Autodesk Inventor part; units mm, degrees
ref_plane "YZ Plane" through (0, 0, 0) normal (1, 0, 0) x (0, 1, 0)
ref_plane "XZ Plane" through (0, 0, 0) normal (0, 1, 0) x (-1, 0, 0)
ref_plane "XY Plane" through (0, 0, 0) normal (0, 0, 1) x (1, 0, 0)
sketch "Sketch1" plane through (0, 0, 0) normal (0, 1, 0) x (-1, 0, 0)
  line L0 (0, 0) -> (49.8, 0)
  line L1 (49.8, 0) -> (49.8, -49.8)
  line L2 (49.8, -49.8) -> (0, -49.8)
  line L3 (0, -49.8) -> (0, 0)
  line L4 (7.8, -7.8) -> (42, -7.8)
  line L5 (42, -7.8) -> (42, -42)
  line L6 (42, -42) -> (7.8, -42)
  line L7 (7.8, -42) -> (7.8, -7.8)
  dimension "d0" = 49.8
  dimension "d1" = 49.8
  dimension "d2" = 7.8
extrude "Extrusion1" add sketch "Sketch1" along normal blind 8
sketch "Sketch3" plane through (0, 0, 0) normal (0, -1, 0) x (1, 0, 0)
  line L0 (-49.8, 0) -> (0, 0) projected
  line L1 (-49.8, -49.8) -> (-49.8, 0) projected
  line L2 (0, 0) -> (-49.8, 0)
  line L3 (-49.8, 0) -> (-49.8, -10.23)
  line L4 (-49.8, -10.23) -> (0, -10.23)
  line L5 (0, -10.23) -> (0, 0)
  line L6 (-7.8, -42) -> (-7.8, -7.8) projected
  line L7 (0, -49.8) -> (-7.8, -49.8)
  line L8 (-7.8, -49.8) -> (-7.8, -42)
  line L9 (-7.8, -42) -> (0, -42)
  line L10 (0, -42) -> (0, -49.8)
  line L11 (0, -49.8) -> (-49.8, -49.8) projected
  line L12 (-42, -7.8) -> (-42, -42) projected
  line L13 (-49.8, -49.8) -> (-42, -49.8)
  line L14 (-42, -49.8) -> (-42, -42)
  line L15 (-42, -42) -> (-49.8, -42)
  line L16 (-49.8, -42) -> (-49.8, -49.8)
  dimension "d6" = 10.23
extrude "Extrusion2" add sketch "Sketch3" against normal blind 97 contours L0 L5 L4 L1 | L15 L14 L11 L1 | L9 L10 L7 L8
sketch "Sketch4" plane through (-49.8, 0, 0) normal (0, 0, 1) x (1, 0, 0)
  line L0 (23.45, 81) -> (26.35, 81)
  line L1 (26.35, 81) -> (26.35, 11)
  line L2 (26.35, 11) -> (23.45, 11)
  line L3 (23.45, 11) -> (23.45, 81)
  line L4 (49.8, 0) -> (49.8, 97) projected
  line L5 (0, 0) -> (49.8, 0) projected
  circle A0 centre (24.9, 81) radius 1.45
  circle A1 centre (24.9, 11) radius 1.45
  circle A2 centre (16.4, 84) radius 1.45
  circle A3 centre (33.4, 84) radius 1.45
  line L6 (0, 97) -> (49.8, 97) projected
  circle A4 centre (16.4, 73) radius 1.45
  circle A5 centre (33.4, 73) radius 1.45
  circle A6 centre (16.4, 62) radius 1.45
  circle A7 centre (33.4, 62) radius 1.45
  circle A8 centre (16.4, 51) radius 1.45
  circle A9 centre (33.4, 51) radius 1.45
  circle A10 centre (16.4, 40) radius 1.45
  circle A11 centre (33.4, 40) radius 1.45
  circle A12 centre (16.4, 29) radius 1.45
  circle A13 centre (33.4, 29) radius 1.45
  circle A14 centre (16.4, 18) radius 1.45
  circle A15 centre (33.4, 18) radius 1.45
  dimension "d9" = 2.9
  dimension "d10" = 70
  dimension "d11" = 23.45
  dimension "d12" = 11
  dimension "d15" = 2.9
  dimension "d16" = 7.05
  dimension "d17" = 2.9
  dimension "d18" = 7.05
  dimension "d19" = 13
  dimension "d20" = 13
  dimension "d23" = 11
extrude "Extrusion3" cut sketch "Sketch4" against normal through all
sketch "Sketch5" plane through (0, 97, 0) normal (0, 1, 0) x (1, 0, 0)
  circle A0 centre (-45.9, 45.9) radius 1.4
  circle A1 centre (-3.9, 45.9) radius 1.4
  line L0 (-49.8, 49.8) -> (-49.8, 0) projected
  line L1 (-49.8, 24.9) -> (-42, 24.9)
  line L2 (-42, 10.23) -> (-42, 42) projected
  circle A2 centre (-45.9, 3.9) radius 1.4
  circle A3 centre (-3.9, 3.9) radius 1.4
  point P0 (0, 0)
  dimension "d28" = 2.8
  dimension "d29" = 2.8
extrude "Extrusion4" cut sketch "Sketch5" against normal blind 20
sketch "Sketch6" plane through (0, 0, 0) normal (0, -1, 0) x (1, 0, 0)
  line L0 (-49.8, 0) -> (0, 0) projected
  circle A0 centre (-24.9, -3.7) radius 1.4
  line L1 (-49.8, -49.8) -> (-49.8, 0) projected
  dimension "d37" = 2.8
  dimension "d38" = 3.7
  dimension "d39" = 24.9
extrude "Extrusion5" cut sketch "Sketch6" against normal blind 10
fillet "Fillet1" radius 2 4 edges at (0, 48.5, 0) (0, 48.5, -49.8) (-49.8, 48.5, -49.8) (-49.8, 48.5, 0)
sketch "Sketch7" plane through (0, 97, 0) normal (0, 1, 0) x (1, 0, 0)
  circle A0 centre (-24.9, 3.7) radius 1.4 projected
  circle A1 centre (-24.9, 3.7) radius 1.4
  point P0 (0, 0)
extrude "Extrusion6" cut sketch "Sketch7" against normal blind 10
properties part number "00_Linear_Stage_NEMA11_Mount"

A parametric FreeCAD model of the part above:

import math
import FreeCAD as App
import Part
import Sketcher
from FreeCAD import Vector
Q = App.Units.Quantity


def edges_at(feature, points):
    """Names of the edges that pass closest to the given points."""
    edges = feature.Shape.Edges
    near = lambda p: min(range(len(edges)), key=lambda i: edges[i].distToShape(Part.Vertex(*p))[0])
    return sorted({f"Edge{near(p) + 1}" for p in points})


def add_polygon(sketch, points):
    """Adds a closed chain of lines whose ends are joined by coincident constraints."""
    first, n = sketch.GeometryCount, len(points)
    for a, b in zip(points, points[1:] + points[:1]):
        sketch.addGeometry(Part.LineSegment(App.Vector(*a, 0), App.Vector(*b, 0)), False)
    for i in range(n):
        sketch.addConstraint(Sketcher.Constraint("Coincident", first + i, 2, first + (i + 1) % n, 1))

doc = App.newDocument("Part")
params = doc.addObject("Spreadsheet::Sheet", "Params")
for row, (alias, value) in enumerate([
    ("sketch1_width", "49.8 mm"),
    ("pad1_length", "8 mm"),
    ("sketch2_height", "10.23 mm"),
    ("sketch2_width", "49.8 mm"),
    ("sketch2_width2", "7.8 mm"),
    ("pad2_length", "97 mm"),
    ("sketch3_diameter", "2.9 mm"),
    ("sketch3_height", "70 mm"),
    ("sketch4_diameter", "2.8 mm"),
    ("pocket2_length", "20 mm"),
    ("sketch5_diameter", "2.8 mm"),
    ("pocket3_length", "10 mm"),
    ("fillet_radius", "2 mm"),
    ("sketch6_diameter", "2.8 mm"),
    ("pocket4_length", "10 mm"),
], start=1):
    params.set(f"A{row}", alias)
    params.set(f"B{row}", "=" + value)
    params.setAlias(f"B{row}", alias)

body = doc.addObject("PartDesign::Body", "Body")

# Sketch on XZ plane
sketch1 = body.newObject("Sketcher::SketchObject", "Sketch")
sketch1.AttachmentSupport = (doc.getObject("XZ_Plane"), [""])
sketch1.MapMode = "FlatFace"
add_polygon(sketch1, [(-50, 0), (0, 0), (0, -50), (-50, -50)])  # lines 0-3
add_polygon(sketch1, [(-8, -42), (-8, -8), (-42, -8), (-42, -42)])  # lines 4-7
sketch1.addConstraint([
    Sketcher.Constraint("Horizontal", 0),
    Sketcher.Constraint("Vertical", 1),
    Sketcher.Constraint("Horizontal", 2),
    Sketcher.Constraint("Vertical", 3),
    Sketcher.Constraint("Vertical", 4),
    Sketcher.Constraint("Horizontal", 5),
    Sketcher.Constraint("Vertical", 6),
    Sketcher.Constraint("Horizontal", 7),
    Sketcher.Constraint("Coincident", 0, 2, -1, 1),
    Sketcher.Constraint("Equal", 2, 1),
    Sketcher.Constraint("Equal", 7, 4),
    Sketcher.Constraint("DistanceX", 0, 1, 0, 2, Q("49.8 mm")),
    Sketcher.Constraint("DistanceX", 4, 2, -1, 1, Q("7.8 mm")),
    Sketcher.Constraint("DistanceY", 4, 2, -1, 1, Q("7.8 mm")),
    Sketcher.Constraint("DistanceX", 3, 2, 5, 2, Q("7.8 mm")),
])
sketch1.setExpression("Constraints[19]", "Params.sketch1_width")
pad1 = body.newObject("PartDesign::Pad", "Pad")
pad1.Profile = sketch1
pad1.setExpression("Length", "Params.pad1_length")
pad1.Reversed = True

# Sketch on XZ plane
sketch2 = body.newObject("Sketcher::SketchObject", "Sketch001")
sketch2.AttachmentSupport = (doc.getObject("XZ_Plane"), [""])
sketch2.MapMode = "FlatFace"
add_polygon(sketch2, [(0, 0), (-50, 0), (-50, -10), (0, -10)])  # lines 0-3
add_polygon(sketch2, [(-42, -42), (-50, -42), (-50, -50), (-42, -50)])  # lines 4-7
add_polygon(sketch2, [(0, -42), (-8, -42), (-8, -50), (0, -50)])  # lines 8-11
sketch2.addConstraint([
    Sketcher.Constraint("Horizontal", 0),
    Sketcher.Constraint("Vertical", 1),
    Sketcher.Constraint("Horizontal", 2),
    Sketcher.Constraint("Vertical", 3),
    Sketcher.Constraint("Horizontal", 4),
    Sketcher.Constraint("Vertical", 5),
    Sketcher.Constraint("Horizontal", 6),
    Sketcher.Constraint("Vertical", 7),
    Sketcher.Constraint("Horizontal", 8),
    Sketcher.Constraint("Vertical", 9),
    Sketcher.Constraint("Horizontal", 10),
    Sketcher.Constraint("Vertical", 11),
    Sketcher.Constraint("Coincident", 3, 2, -1, 1),
    Sketcher.Constraint("PointOnObject", 10, 2, -2),
    Sketcher.Constraint("Horizontal", 7, 2, 8, 2),
    Sketcher.Constraint("Horizontal", 6, 2, 9, 2),
    Sketcher.Constraint("Vertical", 1, 2, 4, 2),
    Sketcher.Constraint("Equal", 6, 8),
    Sketcher.Constraint("Equal", 10, 5),
    Sketcher.Constraint("DistanceY", 1, 2, 1, 1, Q("10.23 mm")),
    Sketcher.Constraint("DistanceX", 0, 2, 0, 1, Q("49.8 mm")),
    Sketcher.Constraint("DistanceX", 4, 2, 4, 1, Q("7.8 mm")),
    Sketcher.Constraint("DistanceY", 4, 2, -1, 1, Q("42 mm")),
])
sketch2.setExpression("Constraints[31]", "Params.sketch2_height")
sketch2.setExpression("Constraints[32]", "Params.sketch2_width")
sketch2.setExpression("Constraints[33]", "Params.sketch2_width2")
pad2 = body.newObject("PartDesign::Pad", "Pad001")
pad2.Profile = sketch2
pad2.setExpression("Length", "Params.pad2_length")
pad2.Reversed = True

# Sketch on XY plane
sketch3 = body.newObject("Sketcher::SketchObject", "Sketch002")
sketch3.AttachmentSupport = (doc.getObject("XY_Plane"), [""])
sketch3.MapMode = "FlatFace"
sketch3.addGeometry([
    Part.ArcOfCircle(Part.Circle(Vector(-24.9, 81, 0), Vector(0, 0, 1), 1.4), math.radians(0), math.radians(180)),  # 0
    Part.LineSegment(Vector(-26.4, 81, 0), Vector(-26.4, 11, 0)),  # 1
    Part.ArcOfCircle(Part.Circle(Vector(-24.9, 11, 0), Vector(0, 0, 1), 1.4), math.radians(180), math.radians(360)),  # 2
    Part.LineSegment(Vector(-23.4, 11, 0), Vector(-23.4, 81, 0)),  # 3
    Part.Circle(Vector(-33.4, 84, 0), Vector(0, 0, 1), 1.4),  # 4
    Part.Circle(Vector(-16.4, 84, 0), Vector(0, 0, 1), 1.4),  # 5
    Part.Circle(Vector(-33.4, 73, 0), Vector(0, 0, 1), 1.4),  # 6
    Part.Circle(Vector(-16.4, 73, 0), Vector(0, 0, 1), 1.4),  # 7
    Part.Circle(Vector(-33.4, 62, 0), Vector(0, 0, 1), 1.4),  # 8
    Part.Circle(Vector(-16.4, 62, 0), Vector(0, 0, 1), 1.4),  # 9
    Part.Circle(Vector(-33.4, 51, 0), Vector(0, 0, 1), 1.4),  # 10
    Part.Circle(Vector(-16.4, 51, 0), Vector(0, 0, 1), 1.4),  # 11
    Part.Circle(Vector(-33.4, 40, 0), Vector(0, 0, 1), 1.4),  # 12
    Part.Circle(Vector(-16.4, 40, 0), Vector(0, 0, 1), 1.4),  # 13
    Part.Circle(Vector(-33.4, 29, 0), Vector(0, 0, 1), 1.4),  # 14
    Part.Circle(Vector(-16.4, 29, 0), Vector(0, 0, 1), 1.4),  # 15
    Part.Circle(Vector(-33.4, 18, 0), Vector(0, 0, 1), 1.4),  # 16
    Part.Circle(Vector(-16.4, 18, 0), Vector(0, 0, 1), 1.4),  # 17
], False)
sketch3.addConstraint([
    Sketcher.Constraint("Tangent", 0, 2, 1, 1),
    Sketcher.Constraint("Tangent", 1, 2, 2, 1),
    Sketcher.Constraint("Tangent", 2, 2, 3, 1),
    Sketcher.Constraint("Tangent", 3, 2, 0, 1),
    Sketcher.Constraint("Vertical", 1),
    Sketcher.Constraint("Vertical", 3),
    Sketcher.Constraint("Equal", 2, 4),
    Sketcher.Constraint("Equal", 4, 5),
    Sketcher.Constraint("Equal", 5, 6),
    Sketcher.Constraint("Equal", 6, 7),
    Sketcher.Constraint("Equal", 7, 8),
    Sketcher.Constraint("Equal", 8, 9),
    Sketcher.Constraint("Equal", 9, 10),
    Sketcher.Constraint("Equal", 10, 11),
    Sketcher.Constraint("Equal", 11, 12),
    Sketcher.Constraint("Equal", 12, 13),
    Sketcher.Constraint("Equal", 13, 14),
    Sketcher.Constraint("Equal", 14, 15),
    Sketcher.Constraint("Equal", 15, 16),
    Sketcher.Constraint("Equal", 16, 17),
    Sketcher.Constraint("Horizontal", 4, 3, 5, 3),
    Sketcher.Constraint("Horizontal", 6, 3, 7, 3),
    Sketcher.Constraint("Horizontal", 8, 3, 9, 3),
    Sketcher.Constraint("Horizontal", 10, 3, 11, 3),
    Sketcher.Constraint("Horizontal", 12, 3, 13, 3),
    Sketcher.Constraint("Horizontal", 14, 3, 15, 3),
    Sketcher.Constraint("Horizontal", 16, 3, 17, 3),
    Sketcher.Constraint("Vertical", 4, 3, 6, 3),
    Sketcher.Constraint("Vertical", 5, 3, 7, 3),
    Sketcher.Constraint("Vertical", 6, 3, 8, 3),
    Sketcher.Constraint("Vertical", 7, 3, 9, 3),
    Sketcher.Constraint("Vertical", 8, 3, 10, 3),
    Sketcher.Constraint("Vertical", 9, 3, 11, 3),
    Sketcher.Constraint("Vertical", 10, 3, 12, 3),
    Sketcher.Constraint("Vertical", 11, 3, 13, 3),
    Sketcher.Constraint("Vertical", 12, 3, 14, 3),
    Sketcher.Constraint("Vertical", 13, 3, 15, 3),
    Sketcher.Constraint("Vertical", 14, 3, 16, 3),
    Sketcher.Constraint("Vertical", 15, 3, 17, 3),
    Sketcher.Constraint("Diameter", 4, Q("2.9 mm")),
    Sketcher.Constraint("DistanceY", 1, 2, 1, 1, Q("70 mm")),
    Sketcher.Constraint("DistanceY", -1, 1, 2, 3, Q("11 mm")),
    Sketcher.Constraint("DistanceY", 6, 3, 4, 3, Q("11 mm")),
    Sketcher.Constraint("DistanceY", 8, 3, 6, 3, Q("11 mm")),
    Sketcher.Constraint("DistanceY", 10, 3, 8, 3, Q("11 mm")),
    Sketcher.Constraint("DistanceY", 12, 3, 10, 3, Q("11 mm")),
    Sketcher.Constraint("DistanceY", 14, 3, 12, 3, Q("11 mm")),
    Sketcher.Constraint("DistanceY", 16, 3, 14, 3, Q("11 mm")),
    Sketcher.Constraint("DistanceX", 2, 2, -1, 1, Q("23.45 mm")),
    Sketcher.Constraint("DistanceX", 4, 3, 0, 2, Q("7.05 mm")),
    Sketcher.Constraint("DistanceX", 2, 2, 17, 3, Q("7.05 mm")),
    Sketcher.Constraint("DistanceY", -1, 1, 4, 3, Q("84 mm")),
])
sketch3.setExpression("Constraints[39]", "Params.sketch3_diameter")
sketch3.setExpression("Constraints[40]", "Params.sketch3_height")
pocket1 = body.newObject("PartDesign::Pocket", "Pocket")
pocket1.Profile = sketch3
pocket1.Type = "ThroughAll"

# Sketch on XZ plane
sketch4 = body.newObject("Sketcher::SketchObject", "Sketch003")
sketch4.AttachmentSupport = (doc.getObject("XZ_Plane"), [""])
sketch4.MapMode = "FlatFace"
sketch4.AttachmentOffset = App.Placement(Vector(0, 0, -97), App.Rotation())
sketch4.addGeometry([
    Part.Circle(Vector(-45.9, -45.9, 0), Vector(0, 0, 1), 1.4),
    Part.Circle(Vector(-3.9, -45.9, 0), Vector(0, 0, 1), 1.4),
    Part.Circle(Vector(-45.9, -3.9, 0), Vector(0, 0, 1), 1.4),
    Part.Circle(Vector(-3.9, -3.9, 0), Vector(0, 0, 1), 1.4),
], False)
sketch4.addConstraint([
    Sketcher.Constraint("Equal", 0, 1),
    Sketcher.Constraint("Equal", 1, 2),
    Sketcher.Constraint("Equal", 2, 3),
    Sketcher.Constraint("Horizontal", 0, 3, 1, 3),
    Sketcher.Constraint("Horizontal", 2, 3, 3, 3),
    Sketcher.Constraint("Vertical", 0, 3, 2, 3),
    Sketcher.Constraint("Vertical", 1, 3, 3, 3),
    Sketcher.Constraint("Diameter", 0, Q("2.8 mm")),
    Sketcher.Constraint("DistanceX", 0, 3, 1, 3, Q("42 mm")),
    Sketcher.Constraint("DistanceY", 0, 3, 2, 3, Q("42 mm")),
    Sketcher.Constraint("DistanceX", 0, 3, -1, 1, Q("45.9 mm")),
    Sketcher.Constraint("DistanceY", 0, 3, -1, 1, Q("45.9 mm")),
])
sketch4.setExpression("Constraints[7]", "Params.sketch4_diameter")
pocket2 = body.newObject("PartDesign::Pocket", "Pocket001")
pocket2.Profile = sketch4
pocket2.setExpression("Length", "Params.pocket2_length")
pocket2.Reversed = True

# Sketch on XZ plane
sketch5 = body.newObject("Sketcher::SketchObject", "Sketch004")
sketch5.AttachmentSupport = (doc.getObject("XZ_Plane"), [""])
sketch5.MapMode = "FlatFace"
sketch5.addGeometry(Part.Circle(Vector(-24.9, -3.7, 0), Vector(0, 0, 1), 1.4), False)
sketch5.addConstraint([
    Sketcher.Constraint("Diameter", 0, Q("2.8 mm")),
    Sketcher.Constraint("DistanceX", 0, 3, -1, 1, Q("24.9 mm")),
    Sketcher.Constraint("DistanceY", 0, 3, -1, 1, Q("3.7 mm")),
])
sketch5.setExpression("Constraints[0]", "Params.sketch5_diameter")
pocket3 = body.newObject("PartDesign::Pocket", "Pocket002")
pocket3.Profile = sketch5
pocket3.setExpression("Length", "Params.pocket3_length")
doc.recompute()

fillet = body.newObject("PartDesign::Fillet", "Fillet")
fillet.Base = (pocket3, edges_at(pocket3, [
    (0, 48.5, 0),
    (0, 48.5, -49.8),
    (-49.8, 48.5, -49.8),
    (-49.8, 48.5, 0),
]))
fillet.setExpression("Radius", "Params.fillet_radius")

# Sketch on XZ plane
sketch6 = body.newObject("Sketcher::SketchObject", "Sketch005")
sketch6.AttachmentSupport = (doc.getObject("XZ_Plane"), [""])
sketch6.MapMode = "FlatFace"
sketch6.AttachmentOffset = App.Placement(Vector(0, 0, -97), App.Rotation())
sketch6.addGeometry(Part.Circle(Vector(-24.9, -3.7, 0), Vector(0, 0, 1), 1.4), False)
sketch6.addConstraint([
    Sketcher.Constraint("Diameter", 0, Q("2.8 mm")),
    Sketcher.Constraint("DistanceX", 0, 3, -1, 1, Q("24.9 mm")),
    Sketcher.Constraint("DistanceY", 0, 3, -1, 1, Q("3.7 mm")),
])
sketch6.setExpression("Constraints[0]", "Params.sketch6_diameter")
pocket4 = body.newObject("PartDesign::Pocket", "Pocket003")
pocket4.Profile = sketch6
pocket4.setExpression("Length", "Params.pocket4_length")
pocket4.Reversed = True

doc.recompute()
